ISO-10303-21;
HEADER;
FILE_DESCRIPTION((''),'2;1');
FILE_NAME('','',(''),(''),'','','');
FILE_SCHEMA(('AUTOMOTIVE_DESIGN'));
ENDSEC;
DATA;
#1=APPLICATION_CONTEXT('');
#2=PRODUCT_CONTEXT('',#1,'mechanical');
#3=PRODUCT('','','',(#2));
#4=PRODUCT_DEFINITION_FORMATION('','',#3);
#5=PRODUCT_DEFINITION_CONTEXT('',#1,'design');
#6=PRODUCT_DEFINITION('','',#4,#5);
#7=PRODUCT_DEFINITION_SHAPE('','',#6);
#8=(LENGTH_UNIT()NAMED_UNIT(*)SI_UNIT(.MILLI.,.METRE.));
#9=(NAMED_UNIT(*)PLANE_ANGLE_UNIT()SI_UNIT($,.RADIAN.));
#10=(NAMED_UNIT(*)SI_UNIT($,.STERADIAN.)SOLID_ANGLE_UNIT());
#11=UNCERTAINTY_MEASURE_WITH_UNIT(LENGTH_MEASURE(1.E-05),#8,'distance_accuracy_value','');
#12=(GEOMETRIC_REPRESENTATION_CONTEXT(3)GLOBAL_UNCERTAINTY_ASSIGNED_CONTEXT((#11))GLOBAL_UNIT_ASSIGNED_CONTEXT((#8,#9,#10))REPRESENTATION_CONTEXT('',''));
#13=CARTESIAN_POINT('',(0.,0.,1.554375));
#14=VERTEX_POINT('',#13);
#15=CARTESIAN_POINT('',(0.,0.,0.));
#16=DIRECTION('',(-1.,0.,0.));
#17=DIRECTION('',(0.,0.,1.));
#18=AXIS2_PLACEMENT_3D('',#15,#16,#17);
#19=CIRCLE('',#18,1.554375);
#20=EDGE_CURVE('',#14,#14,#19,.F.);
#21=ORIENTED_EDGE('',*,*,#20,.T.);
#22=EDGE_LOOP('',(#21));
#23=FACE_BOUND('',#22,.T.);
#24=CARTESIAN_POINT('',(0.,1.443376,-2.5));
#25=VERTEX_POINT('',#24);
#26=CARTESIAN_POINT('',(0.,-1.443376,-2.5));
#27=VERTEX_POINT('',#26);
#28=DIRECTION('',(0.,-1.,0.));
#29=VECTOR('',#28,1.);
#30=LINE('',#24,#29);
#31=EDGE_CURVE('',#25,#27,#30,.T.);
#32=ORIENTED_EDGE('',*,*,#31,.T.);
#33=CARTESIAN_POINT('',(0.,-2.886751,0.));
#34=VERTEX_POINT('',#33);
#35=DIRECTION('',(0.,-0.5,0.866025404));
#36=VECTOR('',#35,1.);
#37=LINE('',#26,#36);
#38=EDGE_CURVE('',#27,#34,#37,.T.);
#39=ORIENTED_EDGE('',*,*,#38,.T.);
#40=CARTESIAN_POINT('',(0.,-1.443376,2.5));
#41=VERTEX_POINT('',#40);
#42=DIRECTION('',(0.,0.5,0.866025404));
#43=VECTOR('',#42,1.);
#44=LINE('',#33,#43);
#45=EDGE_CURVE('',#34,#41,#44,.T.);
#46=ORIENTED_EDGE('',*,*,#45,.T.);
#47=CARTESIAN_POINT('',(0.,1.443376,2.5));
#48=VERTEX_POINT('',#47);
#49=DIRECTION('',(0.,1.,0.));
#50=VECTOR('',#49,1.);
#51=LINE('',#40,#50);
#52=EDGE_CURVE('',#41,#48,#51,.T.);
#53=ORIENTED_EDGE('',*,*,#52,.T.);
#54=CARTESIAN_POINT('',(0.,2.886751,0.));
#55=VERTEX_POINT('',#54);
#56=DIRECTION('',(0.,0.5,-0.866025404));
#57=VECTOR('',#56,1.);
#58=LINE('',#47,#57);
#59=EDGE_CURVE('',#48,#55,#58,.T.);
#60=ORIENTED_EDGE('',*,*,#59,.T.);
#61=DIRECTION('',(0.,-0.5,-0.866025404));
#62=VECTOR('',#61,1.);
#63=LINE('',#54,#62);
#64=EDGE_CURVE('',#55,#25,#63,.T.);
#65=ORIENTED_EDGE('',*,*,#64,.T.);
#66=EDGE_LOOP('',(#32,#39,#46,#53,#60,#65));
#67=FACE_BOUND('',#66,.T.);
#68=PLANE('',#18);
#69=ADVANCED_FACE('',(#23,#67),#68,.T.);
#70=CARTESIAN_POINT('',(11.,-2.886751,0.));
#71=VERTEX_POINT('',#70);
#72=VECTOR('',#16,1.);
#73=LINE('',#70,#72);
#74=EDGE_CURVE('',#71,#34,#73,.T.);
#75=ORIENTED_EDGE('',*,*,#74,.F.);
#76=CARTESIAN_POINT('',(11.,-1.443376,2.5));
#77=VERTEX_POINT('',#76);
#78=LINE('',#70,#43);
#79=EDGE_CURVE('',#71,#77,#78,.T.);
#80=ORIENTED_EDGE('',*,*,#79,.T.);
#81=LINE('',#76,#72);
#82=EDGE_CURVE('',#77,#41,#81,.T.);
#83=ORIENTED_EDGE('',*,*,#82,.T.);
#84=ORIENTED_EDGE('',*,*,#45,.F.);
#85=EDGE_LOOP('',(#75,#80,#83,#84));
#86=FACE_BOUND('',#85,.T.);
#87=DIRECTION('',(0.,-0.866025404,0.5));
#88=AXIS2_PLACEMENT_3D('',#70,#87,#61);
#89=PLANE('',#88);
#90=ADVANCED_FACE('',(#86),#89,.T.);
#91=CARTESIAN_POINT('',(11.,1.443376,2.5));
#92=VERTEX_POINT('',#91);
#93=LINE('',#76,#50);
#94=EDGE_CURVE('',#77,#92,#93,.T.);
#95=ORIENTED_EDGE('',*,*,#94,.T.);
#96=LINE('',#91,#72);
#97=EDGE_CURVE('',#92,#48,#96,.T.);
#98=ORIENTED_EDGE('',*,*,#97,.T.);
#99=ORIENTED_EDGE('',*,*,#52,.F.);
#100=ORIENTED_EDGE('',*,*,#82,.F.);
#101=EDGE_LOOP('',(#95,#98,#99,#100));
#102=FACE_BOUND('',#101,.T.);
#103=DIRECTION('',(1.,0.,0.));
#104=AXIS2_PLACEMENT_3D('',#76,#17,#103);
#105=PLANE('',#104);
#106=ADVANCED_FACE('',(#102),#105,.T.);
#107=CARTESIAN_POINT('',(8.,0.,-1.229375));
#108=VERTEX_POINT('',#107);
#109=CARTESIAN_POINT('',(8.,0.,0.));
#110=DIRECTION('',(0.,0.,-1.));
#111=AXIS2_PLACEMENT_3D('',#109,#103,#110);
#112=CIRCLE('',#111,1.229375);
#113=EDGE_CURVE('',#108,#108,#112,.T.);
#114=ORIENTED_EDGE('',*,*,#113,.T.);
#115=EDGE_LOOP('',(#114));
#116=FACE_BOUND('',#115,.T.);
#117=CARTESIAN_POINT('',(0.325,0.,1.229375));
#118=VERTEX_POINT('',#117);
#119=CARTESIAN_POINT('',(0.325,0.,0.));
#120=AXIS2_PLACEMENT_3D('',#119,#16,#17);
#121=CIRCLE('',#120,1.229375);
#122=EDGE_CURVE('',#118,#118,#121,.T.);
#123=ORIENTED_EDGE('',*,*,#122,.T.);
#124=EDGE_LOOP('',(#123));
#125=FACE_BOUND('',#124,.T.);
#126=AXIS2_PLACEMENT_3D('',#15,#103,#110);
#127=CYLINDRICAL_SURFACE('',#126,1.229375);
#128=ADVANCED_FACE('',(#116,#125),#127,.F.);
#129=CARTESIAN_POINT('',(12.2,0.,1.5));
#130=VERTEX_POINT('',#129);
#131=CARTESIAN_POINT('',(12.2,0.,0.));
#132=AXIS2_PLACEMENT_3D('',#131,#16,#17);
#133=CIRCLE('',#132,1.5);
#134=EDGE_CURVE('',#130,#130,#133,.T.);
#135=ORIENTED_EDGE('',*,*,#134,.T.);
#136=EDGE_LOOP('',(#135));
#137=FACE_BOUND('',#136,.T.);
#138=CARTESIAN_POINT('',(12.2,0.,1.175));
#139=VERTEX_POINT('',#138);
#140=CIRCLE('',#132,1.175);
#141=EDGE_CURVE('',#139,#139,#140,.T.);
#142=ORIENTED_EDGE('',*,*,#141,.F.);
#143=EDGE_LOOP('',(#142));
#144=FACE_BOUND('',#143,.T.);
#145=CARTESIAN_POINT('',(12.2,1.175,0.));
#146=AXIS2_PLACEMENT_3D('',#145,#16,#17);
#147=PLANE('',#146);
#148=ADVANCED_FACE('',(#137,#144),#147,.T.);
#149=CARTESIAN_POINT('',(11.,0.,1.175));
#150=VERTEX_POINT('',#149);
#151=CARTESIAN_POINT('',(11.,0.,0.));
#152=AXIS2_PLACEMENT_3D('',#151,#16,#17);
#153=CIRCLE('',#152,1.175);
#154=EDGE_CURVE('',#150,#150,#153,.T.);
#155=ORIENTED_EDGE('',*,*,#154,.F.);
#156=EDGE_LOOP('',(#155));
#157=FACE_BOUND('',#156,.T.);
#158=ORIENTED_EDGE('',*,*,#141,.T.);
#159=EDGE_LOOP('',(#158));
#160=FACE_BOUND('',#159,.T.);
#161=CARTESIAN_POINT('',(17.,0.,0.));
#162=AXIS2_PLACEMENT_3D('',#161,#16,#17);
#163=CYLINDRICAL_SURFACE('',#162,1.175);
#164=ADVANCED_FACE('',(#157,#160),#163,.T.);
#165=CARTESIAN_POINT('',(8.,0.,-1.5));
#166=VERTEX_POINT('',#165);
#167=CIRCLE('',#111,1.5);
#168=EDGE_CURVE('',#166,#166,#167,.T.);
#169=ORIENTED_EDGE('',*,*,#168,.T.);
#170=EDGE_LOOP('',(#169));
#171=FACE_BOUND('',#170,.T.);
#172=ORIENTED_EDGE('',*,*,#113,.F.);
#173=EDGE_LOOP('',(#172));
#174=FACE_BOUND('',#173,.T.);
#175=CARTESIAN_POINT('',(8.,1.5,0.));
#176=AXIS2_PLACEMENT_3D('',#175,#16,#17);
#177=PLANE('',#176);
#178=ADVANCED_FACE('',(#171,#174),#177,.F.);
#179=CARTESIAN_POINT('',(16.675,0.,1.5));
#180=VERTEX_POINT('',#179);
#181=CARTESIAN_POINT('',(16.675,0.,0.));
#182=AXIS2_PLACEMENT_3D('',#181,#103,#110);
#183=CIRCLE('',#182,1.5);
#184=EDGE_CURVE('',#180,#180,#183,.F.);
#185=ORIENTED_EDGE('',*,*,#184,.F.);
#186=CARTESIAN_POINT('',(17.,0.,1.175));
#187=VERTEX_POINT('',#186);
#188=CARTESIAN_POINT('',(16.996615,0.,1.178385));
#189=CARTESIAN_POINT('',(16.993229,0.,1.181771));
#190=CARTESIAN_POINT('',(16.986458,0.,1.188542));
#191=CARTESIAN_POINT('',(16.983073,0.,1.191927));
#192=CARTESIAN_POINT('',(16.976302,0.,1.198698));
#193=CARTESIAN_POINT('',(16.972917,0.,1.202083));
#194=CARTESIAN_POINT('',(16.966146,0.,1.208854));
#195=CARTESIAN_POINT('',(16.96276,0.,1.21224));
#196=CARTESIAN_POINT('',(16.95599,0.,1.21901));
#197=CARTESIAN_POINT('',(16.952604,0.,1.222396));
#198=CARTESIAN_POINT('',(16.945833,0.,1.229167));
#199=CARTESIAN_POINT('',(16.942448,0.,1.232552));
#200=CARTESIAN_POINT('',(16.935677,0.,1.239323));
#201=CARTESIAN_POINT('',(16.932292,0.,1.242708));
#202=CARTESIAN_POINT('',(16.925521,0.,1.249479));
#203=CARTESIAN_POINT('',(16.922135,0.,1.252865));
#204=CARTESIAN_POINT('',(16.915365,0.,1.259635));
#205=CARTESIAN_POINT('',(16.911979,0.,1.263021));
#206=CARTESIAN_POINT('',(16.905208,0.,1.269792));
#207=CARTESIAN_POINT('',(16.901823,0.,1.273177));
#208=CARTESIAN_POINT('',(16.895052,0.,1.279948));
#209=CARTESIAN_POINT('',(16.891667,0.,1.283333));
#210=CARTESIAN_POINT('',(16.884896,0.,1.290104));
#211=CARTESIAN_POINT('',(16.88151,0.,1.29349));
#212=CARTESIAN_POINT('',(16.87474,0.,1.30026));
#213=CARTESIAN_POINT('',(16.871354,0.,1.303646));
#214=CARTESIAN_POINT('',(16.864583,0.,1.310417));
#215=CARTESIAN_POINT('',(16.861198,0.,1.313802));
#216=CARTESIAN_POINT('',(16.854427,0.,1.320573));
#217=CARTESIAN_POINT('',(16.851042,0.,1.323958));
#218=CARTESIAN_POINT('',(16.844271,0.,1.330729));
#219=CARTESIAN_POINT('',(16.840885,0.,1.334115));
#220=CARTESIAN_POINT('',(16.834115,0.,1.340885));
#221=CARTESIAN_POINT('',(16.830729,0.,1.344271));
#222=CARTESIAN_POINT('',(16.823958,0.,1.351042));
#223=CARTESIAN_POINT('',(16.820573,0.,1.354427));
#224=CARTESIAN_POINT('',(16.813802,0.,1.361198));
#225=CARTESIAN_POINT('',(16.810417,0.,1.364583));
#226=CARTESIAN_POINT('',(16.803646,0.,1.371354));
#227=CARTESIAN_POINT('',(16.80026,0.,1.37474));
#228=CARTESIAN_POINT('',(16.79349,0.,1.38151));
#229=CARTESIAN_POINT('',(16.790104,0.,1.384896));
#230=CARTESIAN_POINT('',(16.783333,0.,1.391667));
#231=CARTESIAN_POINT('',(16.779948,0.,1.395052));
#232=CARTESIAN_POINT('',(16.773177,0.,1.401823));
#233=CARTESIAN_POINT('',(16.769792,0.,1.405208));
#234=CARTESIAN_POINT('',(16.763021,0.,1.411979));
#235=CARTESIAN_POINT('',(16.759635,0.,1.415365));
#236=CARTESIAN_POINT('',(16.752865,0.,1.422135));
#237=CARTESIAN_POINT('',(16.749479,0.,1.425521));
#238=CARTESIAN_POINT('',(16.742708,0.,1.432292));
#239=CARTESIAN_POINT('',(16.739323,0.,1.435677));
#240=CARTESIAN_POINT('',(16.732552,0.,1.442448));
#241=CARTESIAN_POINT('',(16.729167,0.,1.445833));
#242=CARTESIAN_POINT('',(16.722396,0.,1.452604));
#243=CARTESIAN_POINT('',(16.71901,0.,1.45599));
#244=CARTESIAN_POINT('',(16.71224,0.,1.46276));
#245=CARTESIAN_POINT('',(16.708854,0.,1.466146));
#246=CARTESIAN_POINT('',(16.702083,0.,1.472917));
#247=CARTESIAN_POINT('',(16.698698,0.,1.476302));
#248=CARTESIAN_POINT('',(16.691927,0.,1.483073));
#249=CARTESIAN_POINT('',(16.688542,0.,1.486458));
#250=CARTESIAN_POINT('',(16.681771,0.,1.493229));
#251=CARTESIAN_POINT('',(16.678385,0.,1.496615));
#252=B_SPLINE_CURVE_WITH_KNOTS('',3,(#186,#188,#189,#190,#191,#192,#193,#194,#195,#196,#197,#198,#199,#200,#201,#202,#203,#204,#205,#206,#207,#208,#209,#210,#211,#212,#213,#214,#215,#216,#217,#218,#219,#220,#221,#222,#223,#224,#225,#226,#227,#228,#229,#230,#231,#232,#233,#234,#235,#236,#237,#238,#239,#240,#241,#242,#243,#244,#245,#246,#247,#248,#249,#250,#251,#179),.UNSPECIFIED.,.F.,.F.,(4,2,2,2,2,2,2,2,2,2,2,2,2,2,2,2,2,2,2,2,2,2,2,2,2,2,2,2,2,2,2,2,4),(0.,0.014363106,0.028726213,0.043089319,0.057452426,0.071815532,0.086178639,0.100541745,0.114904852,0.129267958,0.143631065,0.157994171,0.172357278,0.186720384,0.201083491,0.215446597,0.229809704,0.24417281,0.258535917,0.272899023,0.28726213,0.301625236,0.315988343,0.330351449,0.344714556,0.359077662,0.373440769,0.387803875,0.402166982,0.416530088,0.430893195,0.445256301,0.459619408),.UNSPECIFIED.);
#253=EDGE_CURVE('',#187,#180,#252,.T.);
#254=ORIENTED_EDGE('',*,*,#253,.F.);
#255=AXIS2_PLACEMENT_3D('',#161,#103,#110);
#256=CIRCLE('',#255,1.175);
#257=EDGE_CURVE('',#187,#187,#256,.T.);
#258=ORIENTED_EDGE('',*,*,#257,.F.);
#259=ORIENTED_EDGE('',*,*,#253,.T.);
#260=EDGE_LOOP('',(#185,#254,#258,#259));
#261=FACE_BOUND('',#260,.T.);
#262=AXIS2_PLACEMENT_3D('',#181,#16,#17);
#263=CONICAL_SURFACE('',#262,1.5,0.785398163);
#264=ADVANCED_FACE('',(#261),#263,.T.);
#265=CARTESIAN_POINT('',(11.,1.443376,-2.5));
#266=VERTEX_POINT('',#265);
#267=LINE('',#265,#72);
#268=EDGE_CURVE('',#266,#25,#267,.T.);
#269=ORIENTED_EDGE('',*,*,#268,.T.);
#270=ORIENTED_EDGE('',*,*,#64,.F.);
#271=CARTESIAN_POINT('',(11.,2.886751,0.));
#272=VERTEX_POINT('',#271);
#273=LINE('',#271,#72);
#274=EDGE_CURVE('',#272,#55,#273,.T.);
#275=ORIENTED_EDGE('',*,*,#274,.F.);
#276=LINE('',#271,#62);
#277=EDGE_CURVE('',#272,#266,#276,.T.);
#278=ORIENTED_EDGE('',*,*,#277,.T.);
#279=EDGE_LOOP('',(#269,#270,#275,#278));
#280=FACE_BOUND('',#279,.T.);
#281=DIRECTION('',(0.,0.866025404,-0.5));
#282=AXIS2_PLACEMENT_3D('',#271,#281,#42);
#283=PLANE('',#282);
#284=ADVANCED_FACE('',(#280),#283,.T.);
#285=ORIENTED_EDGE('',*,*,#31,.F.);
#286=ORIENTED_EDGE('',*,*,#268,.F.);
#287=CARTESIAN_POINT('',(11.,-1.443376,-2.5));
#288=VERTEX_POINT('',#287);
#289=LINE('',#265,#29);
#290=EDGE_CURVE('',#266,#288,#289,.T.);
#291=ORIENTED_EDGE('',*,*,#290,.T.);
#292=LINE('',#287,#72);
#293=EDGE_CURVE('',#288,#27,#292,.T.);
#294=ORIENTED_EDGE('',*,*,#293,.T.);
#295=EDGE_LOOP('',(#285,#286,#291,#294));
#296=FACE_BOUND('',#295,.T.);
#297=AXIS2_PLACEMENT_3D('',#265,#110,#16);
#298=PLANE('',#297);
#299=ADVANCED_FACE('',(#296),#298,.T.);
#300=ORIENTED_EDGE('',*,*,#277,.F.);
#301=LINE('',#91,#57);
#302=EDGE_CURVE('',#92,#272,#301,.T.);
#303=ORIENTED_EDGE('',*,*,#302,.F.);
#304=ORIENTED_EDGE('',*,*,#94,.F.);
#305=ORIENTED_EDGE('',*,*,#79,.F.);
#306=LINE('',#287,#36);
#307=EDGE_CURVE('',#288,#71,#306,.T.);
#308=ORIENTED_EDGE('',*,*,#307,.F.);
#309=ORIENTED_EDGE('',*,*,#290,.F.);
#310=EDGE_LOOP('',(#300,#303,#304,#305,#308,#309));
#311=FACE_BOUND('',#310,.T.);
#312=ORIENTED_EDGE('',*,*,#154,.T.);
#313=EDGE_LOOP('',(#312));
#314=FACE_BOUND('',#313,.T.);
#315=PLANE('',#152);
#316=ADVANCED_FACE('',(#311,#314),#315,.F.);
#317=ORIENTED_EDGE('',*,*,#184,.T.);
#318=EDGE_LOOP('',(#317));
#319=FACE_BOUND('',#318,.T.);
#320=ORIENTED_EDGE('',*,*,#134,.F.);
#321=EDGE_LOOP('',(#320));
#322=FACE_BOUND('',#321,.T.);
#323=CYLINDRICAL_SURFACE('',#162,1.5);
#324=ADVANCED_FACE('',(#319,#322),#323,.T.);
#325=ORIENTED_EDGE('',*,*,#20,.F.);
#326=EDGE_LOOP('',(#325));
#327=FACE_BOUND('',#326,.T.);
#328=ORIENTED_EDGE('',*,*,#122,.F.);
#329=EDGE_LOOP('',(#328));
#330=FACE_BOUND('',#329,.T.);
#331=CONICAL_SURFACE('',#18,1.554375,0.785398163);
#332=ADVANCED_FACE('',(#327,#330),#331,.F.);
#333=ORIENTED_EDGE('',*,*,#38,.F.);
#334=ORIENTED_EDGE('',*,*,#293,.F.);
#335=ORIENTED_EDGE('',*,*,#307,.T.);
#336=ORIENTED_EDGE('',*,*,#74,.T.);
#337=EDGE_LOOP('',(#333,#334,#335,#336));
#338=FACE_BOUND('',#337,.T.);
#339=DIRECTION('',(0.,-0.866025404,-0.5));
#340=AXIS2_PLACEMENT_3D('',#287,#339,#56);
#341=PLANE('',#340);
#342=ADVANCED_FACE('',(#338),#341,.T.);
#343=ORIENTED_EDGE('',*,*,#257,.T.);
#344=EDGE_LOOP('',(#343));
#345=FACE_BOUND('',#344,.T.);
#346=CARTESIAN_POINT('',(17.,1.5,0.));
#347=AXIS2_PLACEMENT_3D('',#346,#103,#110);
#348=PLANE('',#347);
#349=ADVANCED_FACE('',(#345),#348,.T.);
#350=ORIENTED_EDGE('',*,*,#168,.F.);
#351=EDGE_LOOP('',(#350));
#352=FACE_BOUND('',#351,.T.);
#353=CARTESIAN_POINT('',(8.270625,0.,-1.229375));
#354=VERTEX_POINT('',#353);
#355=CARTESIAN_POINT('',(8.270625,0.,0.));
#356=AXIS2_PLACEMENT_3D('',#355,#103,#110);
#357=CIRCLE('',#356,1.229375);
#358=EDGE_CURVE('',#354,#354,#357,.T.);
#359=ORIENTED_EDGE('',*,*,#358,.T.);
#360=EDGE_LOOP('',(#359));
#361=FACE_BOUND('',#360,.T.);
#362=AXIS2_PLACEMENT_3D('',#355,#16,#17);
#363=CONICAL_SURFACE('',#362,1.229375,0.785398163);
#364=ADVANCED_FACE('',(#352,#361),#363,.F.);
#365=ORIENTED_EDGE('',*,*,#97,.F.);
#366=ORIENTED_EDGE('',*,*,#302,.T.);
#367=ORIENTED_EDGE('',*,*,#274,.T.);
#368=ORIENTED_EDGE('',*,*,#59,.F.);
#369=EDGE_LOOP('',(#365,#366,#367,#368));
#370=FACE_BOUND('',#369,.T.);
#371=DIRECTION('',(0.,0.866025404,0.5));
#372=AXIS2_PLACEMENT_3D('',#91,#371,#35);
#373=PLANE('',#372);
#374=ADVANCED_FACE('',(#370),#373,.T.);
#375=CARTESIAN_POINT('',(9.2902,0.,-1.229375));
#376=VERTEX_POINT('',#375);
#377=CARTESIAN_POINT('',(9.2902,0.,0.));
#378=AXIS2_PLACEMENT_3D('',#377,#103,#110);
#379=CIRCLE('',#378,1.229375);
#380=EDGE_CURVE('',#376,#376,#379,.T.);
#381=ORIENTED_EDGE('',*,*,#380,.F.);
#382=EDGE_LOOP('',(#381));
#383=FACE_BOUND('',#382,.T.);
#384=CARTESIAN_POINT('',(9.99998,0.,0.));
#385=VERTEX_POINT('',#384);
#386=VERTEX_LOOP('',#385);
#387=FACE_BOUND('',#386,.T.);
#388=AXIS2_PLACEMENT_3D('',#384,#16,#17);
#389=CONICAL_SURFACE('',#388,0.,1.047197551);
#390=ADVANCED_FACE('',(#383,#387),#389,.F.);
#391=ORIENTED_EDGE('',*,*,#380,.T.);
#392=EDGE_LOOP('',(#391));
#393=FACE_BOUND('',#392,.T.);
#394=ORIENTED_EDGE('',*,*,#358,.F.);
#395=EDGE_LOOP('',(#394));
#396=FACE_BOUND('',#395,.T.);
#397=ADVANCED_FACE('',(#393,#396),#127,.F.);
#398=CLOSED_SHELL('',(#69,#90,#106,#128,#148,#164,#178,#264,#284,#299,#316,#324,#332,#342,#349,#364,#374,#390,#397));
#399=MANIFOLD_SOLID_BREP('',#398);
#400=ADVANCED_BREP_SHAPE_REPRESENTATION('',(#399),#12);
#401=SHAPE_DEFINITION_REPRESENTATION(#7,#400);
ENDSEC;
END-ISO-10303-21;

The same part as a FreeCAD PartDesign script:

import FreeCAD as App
import Part
import Sketcher
from FreeCAD import Vector
Q = App.Units.Quantity


def edges_at(feature, points):
    """Names of the edges that pass closest to the given points."""
    edges = feature.Shape.Edges
    near = lambda p: min(range(len(edges)), key=lambda i: edges[i].distToShape(Part.Vertex(*p))[0])
    return sorted({f"Edge{near(p) + 1}" for p in points})


def add_polygon(sketch, points):
    """Adds a closed chain of lines whose ends are joined by coincident constraints."""
    first, n = sketch.GeometryCount, len(points)
    for a, b in zip(points, points[1:] + points[:1]):
        sketch.addGeometry(Part.LineSegment(App.Vector(*a, 0), App.Vector(*b, 0)), False)
    for i in range(n):
        sketch.addConstraint(Sketcher.Constraint("Coincident", first + i, 2, first + (i + 1) % n, 1))

doc = App.newDocument("Part")
body = doc.addObject("PartDesign::Body", "Body")

sketch1 = body.newObject("Sketcher::SketchObject", "Sketch")
sketch1.AttachmentSupport = (doc.getObject("YZ_Plane"), [""])
sketch1.MapMode = "FlatFace"
add_polygon(sketch1, [(-2.886751, 0), (-1.443376, 2.5), (1.443376, 2.5), (2.886751, 0), (1.443376, -2.5), (-1.443376, -2.5)])
sketch1.addConstraint(Sketcher.Constraint("Horizontal", 1))
sketch1.addConstraint(Sketcher.Constraint("Horizontal", 4))
sketch1.addConstraint(Sketcher.Constraint("Symmetric", 0, 2, 3, 2, -1, 1))
sketch1.addConstraint(Sketcher.Constraint("Symmetric", 2, 2, 5, 2, -1, 1))
sketch1.addConstraint(Sketcher.Constraint("PointOnObject", 2, 2, -1))
sketch1.addConstraint(Sketcher.Constraint("Parallel", 2, 5))
sketch1.addConstraint(Sketcher.Constraint("Vertical", 1, 2, 3, 2))
sketch1.addConstraint(Sketcher.Constraint("Angle", 0, Q("60 deg")))
sketch1.addConstraint(Sketcher.Constraint("DistanceY", 3, 2, 1, 2, Q("5 mm")))
sketch1.addConstraint(Sketcher.Constraint("DistanceX", 1, 1, 1, 2, Q("2.886751 mm")))
pad1 = body.newObject("PartDesign::Pad", "Pad")
pad1.Profile = sketch1
pad1.Length = 11

sketch2 = body.newObject("Sketcher::SketchObject", "Sketch001")
sketch2.AttachmentSupport = (doc.getObject("XY_Plane"), [""])
sketch2.MapMode = "FlatFace"
add_polygon(sketch2, [(0, 1.229375), (0, 0), (9.99998, 0), (9.2902, 1.229375), (8.270625, 1.229375), (8, 1.5), (8, 1.229375)])
sketch2.addConstraint(Sketcher.Constraint("Vertical", 0))
sketch2.addConstraint(Sketcher.Constraint("Horizontal", 1))
sketch2.addConstraint(Sketcher.Constraint("Horizontal", 3))
sketch2.addConstraint(Sketcher.Constraint("Vertical", 5))
sketch2.addConstraint(Sketcher.Constraint("Horizontal", 6))
sketch2.addConstraint(Sketcher.Constraint("Coincident", 0, 2, -1, 1))
sketch2.addConstraint(Sketcher.Constraint("Horizontal", 3, 2, 5, 2))
sketch2.addConstraint(Sketcher.Constraint("DistanceX", 6, 2, 6, 1, Q("8 mm")))
sketch2.addConstraint(Sketcher.Constraint("Angle", 2, Q("120 deg")))
sketch2.addConstraint(Sketcher.Constraint("Angle", 4, Q("135 deg")))
sketch2.addConstraint(Sketcher.Constraint("DistanceY", -1, 1, 4, 2, Q("1.5 mm")))
sketch2.addConstraint(Sketcher.Constraint("DistanceX", 1, 1, 1, 2, Q("9.99998 mm")))
sketch2.addConstraint(Sketcher.Constraint("DistanceX", -1, 1, 2, 2, Q("9.2902 mm")))
groove = body.newObject("PartDesign::Groove", "Groove")
groove.Profile = sketch2
groove.ReferenceAxis = (sketch2, ["H_Axis"])
groove.Angle = 360

sketch3 = body.newObject("Sketcher::SketchObject", "Sketch002")
sketch3.AttachmentSupport = (doc.getObject("XY_Plane"), [""])
sketch3.MapMode = "FlatFace"
add_polygon(sketch3, [(17, 1.5), (17, 0), (11, 0), (11, 1.175), (12.2, 1.175), (12.2, 1.5)])
sketch3.addConstraint(Sketcher.Constraint("Vertical", 0))
sketch3.addConstraint(Sketcher.Constraint("Horizontal", 1))
sketch3.addConstraint(Sketcher.Constraint("Vertical", 2))
sketch3.addConstraint(Sketcher.Constraint("Horizontal", 3))
sketch3.addConstraint(Sketcher.Constraint("Vertical", 4))
sketch3.addConstraint(Sketcher.Constraint("Horizontal", 5))
sketch3.addConstraint(Sketcher.Constraint("PointOnObject", 0, 2, -1))
sketch3.addConstraint(Sketcher.Constraint("DistanceX", 1, 2, 1, 1, Q("6 mm")))
sketch3.addConstraint(Sketcher.Constraint("DistanceX", 3, 1, 3, 2, Q("1.2 mm")))
sketch3.addConstraint(Sketcher.Constraint("DistanceY", 0, 2, 0, 1, Q("1.5 mm")))
sketch3.addConstraint(Sketcher.Constraint("DistanceX", -1, 1, 0, 2, Q("17 mm")))
sketch3.addConstraint(Sketcher.Constraint("DistanceY", 2, 1, 2, 2, Q("1.175 mm")))
revolution = body.newObject("PartDesign::Revolution", "Revolution")
revolution.Profile = sketch3
revolution.ReferenceAxis = (sketch3, ["H_Axis"])
revolution.Angle = 360
doc.recompute()

chamfer = body.newObject("PartDesign::Chamfer", "Chamfer")
chamfer.Base = (revolution, edges_at(revolution, [(0, 0, 1.229), (17, 0, -1.5)]))
chamfer.Size = 0.325

doc.recompute()
